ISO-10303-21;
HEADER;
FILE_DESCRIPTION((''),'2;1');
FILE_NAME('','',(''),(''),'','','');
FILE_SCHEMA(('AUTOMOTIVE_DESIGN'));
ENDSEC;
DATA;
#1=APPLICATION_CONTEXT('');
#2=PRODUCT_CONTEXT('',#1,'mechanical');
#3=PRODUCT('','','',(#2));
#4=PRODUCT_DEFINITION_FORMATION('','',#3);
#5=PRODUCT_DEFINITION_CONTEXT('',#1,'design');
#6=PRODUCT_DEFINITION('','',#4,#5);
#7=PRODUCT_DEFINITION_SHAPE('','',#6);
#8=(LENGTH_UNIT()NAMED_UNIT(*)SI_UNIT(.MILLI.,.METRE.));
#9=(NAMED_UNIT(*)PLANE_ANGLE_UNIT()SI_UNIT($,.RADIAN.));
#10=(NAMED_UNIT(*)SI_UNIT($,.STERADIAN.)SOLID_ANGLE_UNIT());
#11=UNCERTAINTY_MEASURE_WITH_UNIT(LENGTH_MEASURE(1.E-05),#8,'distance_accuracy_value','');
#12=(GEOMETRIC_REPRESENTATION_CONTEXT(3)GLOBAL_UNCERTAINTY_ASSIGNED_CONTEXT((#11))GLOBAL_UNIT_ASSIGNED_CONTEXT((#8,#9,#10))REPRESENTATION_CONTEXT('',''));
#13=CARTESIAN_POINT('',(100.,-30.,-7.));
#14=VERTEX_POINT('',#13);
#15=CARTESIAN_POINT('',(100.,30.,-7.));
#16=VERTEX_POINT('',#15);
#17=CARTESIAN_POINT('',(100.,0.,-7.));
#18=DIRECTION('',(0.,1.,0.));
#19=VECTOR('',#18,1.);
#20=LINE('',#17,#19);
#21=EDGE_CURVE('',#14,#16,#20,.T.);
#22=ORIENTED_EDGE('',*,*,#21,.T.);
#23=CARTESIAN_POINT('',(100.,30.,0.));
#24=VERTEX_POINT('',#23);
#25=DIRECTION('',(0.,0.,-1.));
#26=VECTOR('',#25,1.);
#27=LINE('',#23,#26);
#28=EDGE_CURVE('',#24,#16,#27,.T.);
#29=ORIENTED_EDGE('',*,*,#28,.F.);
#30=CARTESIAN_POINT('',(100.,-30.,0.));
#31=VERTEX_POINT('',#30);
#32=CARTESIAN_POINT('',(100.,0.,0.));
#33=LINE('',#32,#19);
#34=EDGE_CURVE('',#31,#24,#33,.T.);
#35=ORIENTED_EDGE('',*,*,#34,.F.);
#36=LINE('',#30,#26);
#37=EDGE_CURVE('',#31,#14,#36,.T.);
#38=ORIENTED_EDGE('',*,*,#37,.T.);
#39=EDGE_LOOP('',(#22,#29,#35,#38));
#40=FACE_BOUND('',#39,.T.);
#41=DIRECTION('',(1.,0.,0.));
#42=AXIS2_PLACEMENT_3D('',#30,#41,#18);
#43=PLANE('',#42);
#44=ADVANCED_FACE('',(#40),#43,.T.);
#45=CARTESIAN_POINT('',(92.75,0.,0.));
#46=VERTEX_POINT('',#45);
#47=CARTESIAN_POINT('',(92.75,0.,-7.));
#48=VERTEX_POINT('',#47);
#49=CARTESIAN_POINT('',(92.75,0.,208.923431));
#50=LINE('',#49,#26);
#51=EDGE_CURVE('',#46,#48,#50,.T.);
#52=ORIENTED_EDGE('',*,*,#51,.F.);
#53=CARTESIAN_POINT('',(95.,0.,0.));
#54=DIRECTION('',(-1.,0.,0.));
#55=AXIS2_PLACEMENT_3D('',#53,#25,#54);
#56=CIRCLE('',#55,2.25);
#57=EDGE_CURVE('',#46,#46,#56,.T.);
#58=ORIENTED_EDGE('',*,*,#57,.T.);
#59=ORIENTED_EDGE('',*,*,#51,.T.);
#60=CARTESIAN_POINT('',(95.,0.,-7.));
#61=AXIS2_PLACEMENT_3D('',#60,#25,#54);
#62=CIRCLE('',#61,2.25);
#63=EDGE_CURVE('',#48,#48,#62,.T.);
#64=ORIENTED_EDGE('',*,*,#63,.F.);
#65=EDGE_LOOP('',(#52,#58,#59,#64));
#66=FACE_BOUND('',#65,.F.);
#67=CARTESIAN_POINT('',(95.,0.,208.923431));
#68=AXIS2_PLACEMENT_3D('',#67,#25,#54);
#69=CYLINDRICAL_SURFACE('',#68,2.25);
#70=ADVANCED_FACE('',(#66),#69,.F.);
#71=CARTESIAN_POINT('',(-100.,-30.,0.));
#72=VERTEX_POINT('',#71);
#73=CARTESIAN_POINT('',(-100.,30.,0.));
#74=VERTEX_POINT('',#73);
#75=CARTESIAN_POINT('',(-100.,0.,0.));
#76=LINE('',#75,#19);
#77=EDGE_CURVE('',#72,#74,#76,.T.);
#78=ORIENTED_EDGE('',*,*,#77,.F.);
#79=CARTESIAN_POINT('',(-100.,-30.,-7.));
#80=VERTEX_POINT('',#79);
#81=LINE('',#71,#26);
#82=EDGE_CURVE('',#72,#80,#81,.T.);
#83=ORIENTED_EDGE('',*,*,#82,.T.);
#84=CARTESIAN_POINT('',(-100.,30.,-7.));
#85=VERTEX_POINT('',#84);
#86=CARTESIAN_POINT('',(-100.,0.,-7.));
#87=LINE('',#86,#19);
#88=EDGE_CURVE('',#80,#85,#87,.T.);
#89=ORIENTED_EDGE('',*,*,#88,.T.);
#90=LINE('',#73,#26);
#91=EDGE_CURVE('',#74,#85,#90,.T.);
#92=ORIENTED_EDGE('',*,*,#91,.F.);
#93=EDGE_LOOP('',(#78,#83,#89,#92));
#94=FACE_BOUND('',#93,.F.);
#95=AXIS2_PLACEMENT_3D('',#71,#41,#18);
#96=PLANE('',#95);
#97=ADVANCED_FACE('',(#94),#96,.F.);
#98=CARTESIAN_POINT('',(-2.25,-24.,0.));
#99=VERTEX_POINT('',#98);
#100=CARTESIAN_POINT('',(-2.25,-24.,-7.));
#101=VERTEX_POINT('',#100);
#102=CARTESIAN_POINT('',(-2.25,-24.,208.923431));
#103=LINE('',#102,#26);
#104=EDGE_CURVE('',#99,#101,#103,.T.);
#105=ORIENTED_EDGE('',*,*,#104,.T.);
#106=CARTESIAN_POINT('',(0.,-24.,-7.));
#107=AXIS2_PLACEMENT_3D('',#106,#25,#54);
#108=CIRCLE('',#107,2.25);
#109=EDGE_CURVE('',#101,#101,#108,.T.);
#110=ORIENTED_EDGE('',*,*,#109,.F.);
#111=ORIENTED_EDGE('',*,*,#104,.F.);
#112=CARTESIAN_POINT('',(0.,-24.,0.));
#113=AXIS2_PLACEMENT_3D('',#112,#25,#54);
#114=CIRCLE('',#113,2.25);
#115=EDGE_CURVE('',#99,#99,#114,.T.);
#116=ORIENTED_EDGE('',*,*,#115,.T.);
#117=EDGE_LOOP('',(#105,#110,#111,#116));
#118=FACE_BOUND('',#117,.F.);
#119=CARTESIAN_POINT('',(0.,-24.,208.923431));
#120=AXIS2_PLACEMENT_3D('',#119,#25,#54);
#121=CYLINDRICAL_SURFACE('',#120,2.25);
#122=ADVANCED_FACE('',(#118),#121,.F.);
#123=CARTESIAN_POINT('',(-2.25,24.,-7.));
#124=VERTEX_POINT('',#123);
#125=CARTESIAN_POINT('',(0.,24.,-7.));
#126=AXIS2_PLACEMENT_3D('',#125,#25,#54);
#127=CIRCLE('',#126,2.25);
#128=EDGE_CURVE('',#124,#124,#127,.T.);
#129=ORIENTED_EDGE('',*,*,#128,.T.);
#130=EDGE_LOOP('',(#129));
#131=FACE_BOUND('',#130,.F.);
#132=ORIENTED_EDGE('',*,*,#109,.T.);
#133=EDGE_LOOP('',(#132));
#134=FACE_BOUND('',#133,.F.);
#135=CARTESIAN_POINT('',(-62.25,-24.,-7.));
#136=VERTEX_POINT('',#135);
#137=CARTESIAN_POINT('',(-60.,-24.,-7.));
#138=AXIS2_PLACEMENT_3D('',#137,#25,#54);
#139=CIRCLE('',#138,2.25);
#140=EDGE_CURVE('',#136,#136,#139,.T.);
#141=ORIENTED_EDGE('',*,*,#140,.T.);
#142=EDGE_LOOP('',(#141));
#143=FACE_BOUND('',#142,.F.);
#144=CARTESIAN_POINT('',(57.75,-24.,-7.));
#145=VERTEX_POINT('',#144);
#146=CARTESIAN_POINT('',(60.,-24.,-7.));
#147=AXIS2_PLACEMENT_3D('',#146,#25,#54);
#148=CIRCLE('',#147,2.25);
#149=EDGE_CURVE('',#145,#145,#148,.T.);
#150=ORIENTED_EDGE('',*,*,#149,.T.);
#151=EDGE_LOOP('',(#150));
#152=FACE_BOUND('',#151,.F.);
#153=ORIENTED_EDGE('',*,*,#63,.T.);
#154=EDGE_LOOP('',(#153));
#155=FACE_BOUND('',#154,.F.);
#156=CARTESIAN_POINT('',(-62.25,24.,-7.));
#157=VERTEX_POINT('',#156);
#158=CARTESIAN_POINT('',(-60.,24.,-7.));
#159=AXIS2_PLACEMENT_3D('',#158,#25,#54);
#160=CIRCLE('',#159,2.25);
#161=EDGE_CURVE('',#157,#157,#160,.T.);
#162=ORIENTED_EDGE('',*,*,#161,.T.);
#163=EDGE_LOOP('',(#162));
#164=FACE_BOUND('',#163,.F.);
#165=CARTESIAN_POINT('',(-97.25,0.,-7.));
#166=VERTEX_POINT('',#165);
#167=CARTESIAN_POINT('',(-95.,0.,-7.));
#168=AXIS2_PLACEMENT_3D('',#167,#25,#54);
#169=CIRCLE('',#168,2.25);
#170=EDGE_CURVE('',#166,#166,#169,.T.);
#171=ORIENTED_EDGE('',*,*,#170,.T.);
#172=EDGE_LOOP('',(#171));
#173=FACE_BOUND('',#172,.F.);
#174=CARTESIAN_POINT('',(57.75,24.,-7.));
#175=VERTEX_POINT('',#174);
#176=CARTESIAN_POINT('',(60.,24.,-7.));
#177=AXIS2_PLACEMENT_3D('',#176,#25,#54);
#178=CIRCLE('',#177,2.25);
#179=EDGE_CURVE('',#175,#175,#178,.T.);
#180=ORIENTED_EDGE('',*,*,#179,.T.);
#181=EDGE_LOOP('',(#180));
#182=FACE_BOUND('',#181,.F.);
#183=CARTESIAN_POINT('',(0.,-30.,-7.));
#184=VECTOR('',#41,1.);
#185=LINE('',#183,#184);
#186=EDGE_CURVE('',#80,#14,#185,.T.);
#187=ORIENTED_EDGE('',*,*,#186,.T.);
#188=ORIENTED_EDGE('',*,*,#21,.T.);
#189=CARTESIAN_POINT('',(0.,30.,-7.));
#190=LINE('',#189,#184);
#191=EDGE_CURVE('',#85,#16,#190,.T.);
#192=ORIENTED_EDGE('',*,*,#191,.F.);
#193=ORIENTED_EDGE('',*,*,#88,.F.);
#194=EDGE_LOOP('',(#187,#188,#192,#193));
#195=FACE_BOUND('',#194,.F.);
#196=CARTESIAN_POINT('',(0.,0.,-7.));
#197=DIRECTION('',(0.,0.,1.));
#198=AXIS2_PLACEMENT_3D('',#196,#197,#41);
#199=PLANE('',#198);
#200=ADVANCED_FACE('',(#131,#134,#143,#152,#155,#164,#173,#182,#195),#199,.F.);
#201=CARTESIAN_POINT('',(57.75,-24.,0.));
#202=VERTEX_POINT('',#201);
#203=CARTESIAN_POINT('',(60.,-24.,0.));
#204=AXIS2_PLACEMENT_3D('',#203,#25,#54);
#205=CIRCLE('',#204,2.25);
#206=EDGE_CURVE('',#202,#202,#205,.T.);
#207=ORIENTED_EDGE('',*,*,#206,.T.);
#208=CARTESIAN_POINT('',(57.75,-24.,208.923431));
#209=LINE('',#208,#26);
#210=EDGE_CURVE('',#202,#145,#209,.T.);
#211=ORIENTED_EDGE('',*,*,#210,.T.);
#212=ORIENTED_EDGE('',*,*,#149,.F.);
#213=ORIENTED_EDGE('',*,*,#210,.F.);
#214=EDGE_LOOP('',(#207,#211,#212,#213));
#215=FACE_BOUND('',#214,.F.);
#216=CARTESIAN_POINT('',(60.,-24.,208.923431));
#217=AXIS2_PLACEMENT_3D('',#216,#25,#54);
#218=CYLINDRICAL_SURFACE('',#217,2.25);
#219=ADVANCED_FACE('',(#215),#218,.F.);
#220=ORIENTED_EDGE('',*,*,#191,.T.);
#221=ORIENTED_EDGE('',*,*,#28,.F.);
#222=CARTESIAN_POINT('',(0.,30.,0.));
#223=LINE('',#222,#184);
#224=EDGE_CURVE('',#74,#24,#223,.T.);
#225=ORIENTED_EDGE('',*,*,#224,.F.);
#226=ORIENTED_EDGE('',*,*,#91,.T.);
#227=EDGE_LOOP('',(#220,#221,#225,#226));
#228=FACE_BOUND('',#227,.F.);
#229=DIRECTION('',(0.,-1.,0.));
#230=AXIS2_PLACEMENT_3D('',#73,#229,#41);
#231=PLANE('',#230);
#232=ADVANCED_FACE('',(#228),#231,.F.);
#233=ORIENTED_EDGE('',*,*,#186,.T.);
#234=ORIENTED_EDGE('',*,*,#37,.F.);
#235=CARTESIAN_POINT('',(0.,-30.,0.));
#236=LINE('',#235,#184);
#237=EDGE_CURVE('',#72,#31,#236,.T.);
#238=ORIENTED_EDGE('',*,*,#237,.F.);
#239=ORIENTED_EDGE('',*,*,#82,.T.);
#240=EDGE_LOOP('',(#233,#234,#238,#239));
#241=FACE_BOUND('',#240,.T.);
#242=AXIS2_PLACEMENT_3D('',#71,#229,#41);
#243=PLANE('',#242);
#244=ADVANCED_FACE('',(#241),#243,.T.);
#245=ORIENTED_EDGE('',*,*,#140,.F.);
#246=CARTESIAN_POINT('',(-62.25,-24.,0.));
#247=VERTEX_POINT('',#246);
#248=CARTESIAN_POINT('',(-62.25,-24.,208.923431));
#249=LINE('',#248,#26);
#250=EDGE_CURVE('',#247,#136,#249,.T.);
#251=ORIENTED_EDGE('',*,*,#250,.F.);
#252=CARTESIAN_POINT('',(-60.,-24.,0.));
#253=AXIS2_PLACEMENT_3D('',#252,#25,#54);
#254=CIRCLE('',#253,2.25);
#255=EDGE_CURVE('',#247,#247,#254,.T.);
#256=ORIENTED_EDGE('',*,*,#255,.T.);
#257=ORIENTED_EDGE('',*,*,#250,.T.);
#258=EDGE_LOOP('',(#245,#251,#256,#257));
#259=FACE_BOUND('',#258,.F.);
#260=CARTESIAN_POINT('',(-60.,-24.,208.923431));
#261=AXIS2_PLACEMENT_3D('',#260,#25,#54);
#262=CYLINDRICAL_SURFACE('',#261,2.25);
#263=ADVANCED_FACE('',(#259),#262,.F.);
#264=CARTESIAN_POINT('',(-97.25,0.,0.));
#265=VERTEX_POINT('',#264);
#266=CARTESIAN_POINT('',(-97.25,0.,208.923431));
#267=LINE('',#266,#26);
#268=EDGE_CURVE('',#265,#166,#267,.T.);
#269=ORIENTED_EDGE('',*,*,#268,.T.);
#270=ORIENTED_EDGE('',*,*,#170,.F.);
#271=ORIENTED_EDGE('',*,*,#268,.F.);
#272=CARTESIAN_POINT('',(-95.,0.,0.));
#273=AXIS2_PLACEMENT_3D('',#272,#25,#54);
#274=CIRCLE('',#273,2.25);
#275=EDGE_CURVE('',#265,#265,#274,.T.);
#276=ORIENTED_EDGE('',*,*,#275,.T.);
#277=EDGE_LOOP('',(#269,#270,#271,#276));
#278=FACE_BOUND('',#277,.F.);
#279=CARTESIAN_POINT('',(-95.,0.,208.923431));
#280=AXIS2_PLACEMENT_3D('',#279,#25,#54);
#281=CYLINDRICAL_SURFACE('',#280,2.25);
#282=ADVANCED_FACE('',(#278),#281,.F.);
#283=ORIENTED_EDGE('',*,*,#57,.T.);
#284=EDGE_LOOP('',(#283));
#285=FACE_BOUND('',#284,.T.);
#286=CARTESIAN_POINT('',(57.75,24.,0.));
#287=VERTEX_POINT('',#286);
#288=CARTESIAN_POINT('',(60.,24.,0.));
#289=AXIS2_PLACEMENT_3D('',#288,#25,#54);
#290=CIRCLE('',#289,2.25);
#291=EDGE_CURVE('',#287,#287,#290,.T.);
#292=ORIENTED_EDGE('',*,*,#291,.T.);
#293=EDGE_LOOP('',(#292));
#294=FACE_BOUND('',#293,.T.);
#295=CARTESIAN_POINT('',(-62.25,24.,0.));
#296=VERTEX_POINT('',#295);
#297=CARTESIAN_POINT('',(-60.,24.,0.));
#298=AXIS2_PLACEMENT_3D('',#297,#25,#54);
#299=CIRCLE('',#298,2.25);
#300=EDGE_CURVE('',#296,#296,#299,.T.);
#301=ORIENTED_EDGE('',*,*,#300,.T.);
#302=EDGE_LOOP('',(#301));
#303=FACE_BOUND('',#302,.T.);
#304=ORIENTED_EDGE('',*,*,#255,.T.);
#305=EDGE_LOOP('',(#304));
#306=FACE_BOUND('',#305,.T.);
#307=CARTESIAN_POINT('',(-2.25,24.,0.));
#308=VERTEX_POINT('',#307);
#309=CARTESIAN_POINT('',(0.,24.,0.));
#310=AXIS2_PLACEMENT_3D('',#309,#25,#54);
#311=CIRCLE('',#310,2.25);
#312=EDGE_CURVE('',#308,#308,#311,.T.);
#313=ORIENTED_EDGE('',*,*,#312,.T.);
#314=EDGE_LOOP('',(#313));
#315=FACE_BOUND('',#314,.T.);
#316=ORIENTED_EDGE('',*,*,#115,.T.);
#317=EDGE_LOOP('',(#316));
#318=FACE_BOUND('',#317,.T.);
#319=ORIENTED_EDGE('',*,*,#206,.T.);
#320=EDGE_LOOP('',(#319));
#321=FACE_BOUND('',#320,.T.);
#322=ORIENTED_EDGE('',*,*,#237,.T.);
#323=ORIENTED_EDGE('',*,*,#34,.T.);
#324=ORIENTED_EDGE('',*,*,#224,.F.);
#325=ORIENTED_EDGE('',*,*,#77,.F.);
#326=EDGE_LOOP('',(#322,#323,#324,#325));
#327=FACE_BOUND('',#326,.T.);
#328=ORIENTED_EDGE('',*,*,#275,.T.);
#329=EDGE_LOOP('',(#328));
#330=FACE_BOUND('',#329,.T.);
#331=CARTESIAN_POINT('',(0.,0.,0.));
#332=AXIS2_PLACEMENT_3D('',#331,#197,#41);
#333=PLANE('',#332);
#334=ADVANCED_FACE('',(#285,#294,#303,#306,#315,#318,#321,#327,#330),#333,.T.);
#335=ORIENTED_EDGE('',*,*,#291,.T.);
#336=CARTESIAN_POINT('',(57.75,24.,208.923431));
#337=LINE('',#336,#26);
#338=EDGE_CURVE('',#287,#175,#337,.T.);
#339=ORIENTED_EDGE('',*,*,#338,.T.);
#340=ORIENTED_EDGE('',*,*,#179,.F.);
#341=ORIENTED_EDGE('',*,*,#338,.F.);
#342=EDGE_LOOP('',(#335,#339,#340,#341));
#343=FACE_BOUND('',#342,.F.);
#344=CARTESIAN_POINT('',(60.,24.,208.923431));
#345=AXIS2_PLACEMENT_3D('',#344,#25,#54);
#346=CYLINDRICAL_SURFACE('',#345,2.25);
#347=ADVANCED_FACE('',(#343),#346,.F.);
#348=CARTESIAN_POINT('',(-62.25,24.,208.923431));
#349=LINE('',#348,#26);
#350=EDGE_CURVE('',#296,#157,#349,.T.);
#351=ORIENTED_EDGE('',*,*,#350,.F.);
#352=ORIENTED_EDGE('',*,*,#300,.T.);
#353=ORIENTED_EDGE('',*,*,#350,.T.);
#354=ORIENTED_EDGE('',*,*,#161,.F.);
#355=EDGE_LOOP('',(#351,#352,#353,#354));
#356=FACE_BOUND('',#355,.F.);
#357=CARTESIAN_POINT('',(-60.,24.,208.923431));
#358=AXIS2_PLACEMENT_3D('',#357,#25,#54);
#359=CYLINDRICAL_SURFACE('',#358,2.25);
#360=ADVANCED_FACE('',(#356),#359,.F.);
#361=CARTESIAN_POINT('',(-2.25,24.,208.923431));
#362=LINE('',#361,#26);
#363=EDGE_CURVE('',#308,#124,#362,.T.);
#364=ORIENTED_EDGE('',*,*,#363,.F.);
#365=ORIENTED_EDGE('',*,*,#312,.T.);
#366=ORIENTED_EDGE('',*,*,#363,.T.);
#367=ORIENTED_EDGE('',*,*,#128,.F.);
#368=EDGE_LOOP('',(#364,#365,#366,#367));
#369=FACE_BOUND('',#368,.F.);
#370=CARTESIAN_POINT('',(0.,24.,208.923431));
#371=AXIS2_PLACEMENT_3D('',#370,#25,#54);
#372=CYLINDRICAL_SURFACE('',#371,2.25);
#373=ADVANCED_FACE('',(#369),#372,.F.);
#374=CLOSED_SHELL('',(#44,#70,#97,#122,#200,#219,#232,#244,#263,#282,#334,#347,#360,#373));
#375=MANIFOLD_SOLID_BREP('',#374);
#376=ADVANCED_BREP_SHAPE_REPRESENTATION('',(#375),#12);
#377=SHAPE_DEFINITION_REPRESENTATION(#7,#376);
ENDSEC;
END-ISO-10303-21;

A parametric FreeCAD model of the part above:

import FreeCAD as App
import Part
import Sketcher
from FreeCAD import Vector


def add_polygon(sketch, points):
    """Adds a closed chain of lines whose ends are joined by coincident constraints."""
    first, n = sketch.GeometryCount, len(points)
    for a, b in zip(points, points[1:] + points[:1]):
        sketch.addGeometry(Part.LineSegment(App.Vector(*a, 0), App.Vector(*b, 0)), False)
    for i in range(n):
        sketch.addConstraint(Sketcher.Constraint("Coincident", first + i, 2, first + (i + 1) % n, 1))

doc = App.newDocument("Part")
body = doc.addObject("PartDesign::Body", "Body")

sketch1 = doc.addObject("Sketcher::SketchObject", "Sketch")
body.addObject(sketch1)
sketch1.AttachmentSupport = (doc.XY_Plane, [""])
sketch1.MapMode = "FlatFace"
add_polygon(sketch1, [(-100, 30), (-100, -30), (100, -30), (100, 30)])
sketch1.addConstraint(Sketcher.Constraint("Vertical", 0))
sketch1.addConstraint(Sketcher.Constraint("Horizontal", 1))
sketch1.addConstraint(Sketcher.Constraint("Vertical", 2))
sketch1.addConstraint(Sketcher.Constraint("Horizontal", 3))
sketch1.addConstraint(Sketcher.Constraint("Symmetric", 0, 2, 2, 2, -1, 1))
sketch1.addConstraint(Sketcher.Constraint("DistanceX", 1, 1, 1, 2, 200.0))
sketch1.addConstraint(Sketcher.Constraint("DistanceY", 0, 2, 0, 1, 60.0))
pad1 = doc.addObject("PartDesign::Pad", "Pad")
body.addObject(pad1)
pad1.Profile = sketch1
pad1.Length = 7
pad1.Reversed = True

sketch2 = doc.addObject("Sketcher::SketchObject", "Sketch001")
body.addObject(sketch2)
sketch2.AttachmentSupport = (doc.XY_Plane, [""])
sketch2.MapMode = "FlatFace"
sketch2.addGeometry(Part.Circle(Vector(-60, 24, 0), Vector(0, 0, 1), 2.25), False)
sketch2.addGeometry(Part.Circle(Vector(60, 24, 0), Vector(0, 0, 1), 2.25), False)
sketch2.addGeometry(Part.Circle(Vector(60, -24, 0), Vector(0, 0, 1), 2.25), False)
sketch2.addGeometry(Part.Circle(Vector(-60, -24, 0), Vector(0, 0, 1), 2.25), False)
sketch2.addGeometry(Part.Circle(Vector(-95, 0, 0), Vector(0, 0, 1), 2.25), False)
sketch2.addGeometry(Part.Circle(Vector(95, 0, 0), Vector(0, 0, 1), 2.25), False)
sketch2.addGeometry(Part.Circle(Vector(0, 24, 0), Vector(0, 0, 1), 2.25), False)
sketch2.addGeometry(Part.Circle(Vector(0, -24, 0), Vector(0, 0, 1), 2.25), False)
sketch2.addConstraint(Sketcher.Constraint("Equal", 0, 1))
sketch2.addConstraint(Sketcher.Constraint("Equal", 1, 2))
sketch2.addConstraint(Sketcher.Constraint("Equal", 2, 3))
sketch2.addConstraint(Sketcher.Constraint("Equal", 3, 4))
sketch2.addConstraint(Sketcher.Constraint("Equal", 4, 5))
sketch2.addConstraint(Sketcher.Constraint("Equal", 5, 6))
sketch2.addConstraint(Sketcher.Constraint("Equal", 6, 7))
sketch2.addConstraint(Sketcher.Constraint("Symmetric", 0, 3, 2, 3, -1, 1))
sketch2.addConstraint(Sketcher.Constraint("Symmetric", 1, 3, 3, 3, -1, 1))
sketch2.addConstraint(Sketcher.Constraint("Symmetric", 4, 3, 5, 3, -1, 1))
sketch2.addConstraint(Sketcher.Constraint("Symmetric", 6, 3, 7, 3, -1, 1))
sketch2.addConstraint(Sketcher.Constraint("Symmetric", 0, 3, 1, 3, -2))
sketch2.addConstraint(Sketcher.Constraint("PointOnObject", 4, 3, -1))
sketch2.addConstraint(Sketcher.Constraint("PointOnObject", 6, 3, -2))
sketch2.addConstraint(Sketcher.Constraint("Horizontal", 1, 3, 6, 3))
sketch2.addConstraint(Sketcher.Constraint("Diameter", 0, 4.5))
sketch2.addConstraint(Sketcher.Constraint("DistanceX", 0, 3, -1, 1, 60.0))
sketch2.addConstraint(Sketcher.Constraint("DistanceY", -1, 1, 0, 3, 24.0))
sketch2.addConstraint(Sketcher.Constraint("DistanceX", 4, 3, -1, 1, 95.0))
doc.recompute()
hole = doc.addObject("PartDesign::Hole", "Hole")
body.addObject(hole)
hole.Profile = sketch2
hole.ThreadType = "None"
hole.Diameter = 4.5
hole.DepthType = "ThroughAll"

doc.recompute()
